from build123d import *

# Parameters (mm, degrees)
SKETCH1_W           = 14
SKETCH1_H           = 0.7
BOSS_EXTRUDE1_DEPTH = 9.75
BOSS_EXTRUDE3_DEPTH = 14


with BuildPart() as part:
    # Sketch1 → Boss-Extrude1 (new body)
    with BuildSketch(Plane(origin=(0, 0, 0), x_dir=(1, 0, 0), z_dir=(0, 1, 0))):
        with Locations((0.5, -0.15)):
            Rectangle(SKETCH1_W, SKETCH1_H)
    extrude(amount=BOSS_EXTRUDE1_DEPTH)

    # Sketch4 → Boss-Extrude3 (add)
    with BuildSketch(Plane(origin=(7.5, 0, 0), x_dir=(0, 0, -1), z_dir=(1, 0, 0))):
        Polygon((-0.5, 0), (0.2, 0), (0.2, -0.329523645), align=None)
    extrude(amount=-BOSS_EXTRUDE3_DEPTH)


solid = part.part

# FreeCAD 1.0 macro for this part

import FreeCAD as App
import Part
import Sketcher
from FreeCAD import Vector
Q = App.Units.Quantity


def add_polygon(sketch, points):
    """Adds a closed chain of lines whose ends are joined by coincident constraints."""
    first, n = sketch.GeometryCount, len(points)
    for a, b in zip(points, points[1:] + points[:1]):
        sketch.addGeometry(Part.LineSegment(App.Vector(*a, 0), App.Vector(*b, 0)), False)
    for i in range(n):
        sketch.addConstraint(Sketcher.Constraint("Coincident", first + i, 2, first + (i + 1) % n, 1))

doc = App.newDocument("Part")
body = doc.addObject("PartDesign::Body", "Body")

sketch1 = body.newObject("Sketcher::SketchObject", "Sketch")
sketch1.AttachmentSupport = (doc.getObject("XZ_Plane"), [""])
sketch1.MapMode = "FlatFace"
add_polygon(sketch1, [(-6.5, -0.2), (-6.5, 0.5), (7.5, 0.5), (7.5, -0.2)])
sketch1.addConstraint(Sketcher.Constraint("Vertical", 0))
sketch1.addConstraint(Sketcher.Constraint("Horizontal", 1))
sketch1.addConstraint(Sketcher.Constraint("Vertical", 2))
sketch1.addConstraint(Sketcher.Constraint("Horizontal", 3))
sketch1.addConstraint(Sketcher.Constraint("DistanceX", 1, 1, 1, 2, Q("14 mm")))
sketch1.addConstraint(Sketcher.Constraint("DistanceY", 0, 1, 0, 2, Q("0.7 mm")))
sketch1.addConstraint(Sketcher.Constraint("DistanceX", 0, 2, -1, 1, Q("6.5 mm")))
sketch1.addConstraint(Sketcher.Constraint("DistanceY", -1, 1, 0, 2, Q("0.5 mm")))
pad1 = body.newObject("PartDesign::Pad", "Pad")
pad1.Profile = sketch1
pad1.Length = 9.75
pad1.Reversed = True

sketch2 = body.newObject("Sketcher::SketchObject", "Sketch001")
sketch2.AttachmentSupport = (doc.getObject("YZ_Plane"), [""])
sketch2.MapMode = "FlatFace"
sketch2.AttachmentOffset = App.Placement(Vector(0, 0, 7.5), App.Rotation())
add_polygon(sketch2, [(0, -0.2), (0, 0.5), (-0.329524, -0.2)])
sketch2.addConstraint(Sketcher.Constraint("Vertical", 0))
sketch2.addConstraint(Sketcher.Constraint("Horizontal", 2))
sketch2.addConstraint(Sketcher.Constraint("PointOnObject", 0, 2, -2))
sketch2.addConstraint(Sketcher.Constraint("DistanceY", 0, 1, 0, 2, Q("0.7 mm")))
sketch2.addConstraint(Sketcher.Constraint("DistanceY", -1, 1, 0, 2, Q("0.5 mm")))
sketch2.addConstraint(Sketcher.Constraint("DistanceX", 2, 1, 2, 2, Q("0.329524 mm")))
pad2 = body.newObject("PartDesign::Pad", "Pad001")
pad2.Profile = sketch2
pad2.Length = 14
pad2.Reversed = True

doc.recompute()
